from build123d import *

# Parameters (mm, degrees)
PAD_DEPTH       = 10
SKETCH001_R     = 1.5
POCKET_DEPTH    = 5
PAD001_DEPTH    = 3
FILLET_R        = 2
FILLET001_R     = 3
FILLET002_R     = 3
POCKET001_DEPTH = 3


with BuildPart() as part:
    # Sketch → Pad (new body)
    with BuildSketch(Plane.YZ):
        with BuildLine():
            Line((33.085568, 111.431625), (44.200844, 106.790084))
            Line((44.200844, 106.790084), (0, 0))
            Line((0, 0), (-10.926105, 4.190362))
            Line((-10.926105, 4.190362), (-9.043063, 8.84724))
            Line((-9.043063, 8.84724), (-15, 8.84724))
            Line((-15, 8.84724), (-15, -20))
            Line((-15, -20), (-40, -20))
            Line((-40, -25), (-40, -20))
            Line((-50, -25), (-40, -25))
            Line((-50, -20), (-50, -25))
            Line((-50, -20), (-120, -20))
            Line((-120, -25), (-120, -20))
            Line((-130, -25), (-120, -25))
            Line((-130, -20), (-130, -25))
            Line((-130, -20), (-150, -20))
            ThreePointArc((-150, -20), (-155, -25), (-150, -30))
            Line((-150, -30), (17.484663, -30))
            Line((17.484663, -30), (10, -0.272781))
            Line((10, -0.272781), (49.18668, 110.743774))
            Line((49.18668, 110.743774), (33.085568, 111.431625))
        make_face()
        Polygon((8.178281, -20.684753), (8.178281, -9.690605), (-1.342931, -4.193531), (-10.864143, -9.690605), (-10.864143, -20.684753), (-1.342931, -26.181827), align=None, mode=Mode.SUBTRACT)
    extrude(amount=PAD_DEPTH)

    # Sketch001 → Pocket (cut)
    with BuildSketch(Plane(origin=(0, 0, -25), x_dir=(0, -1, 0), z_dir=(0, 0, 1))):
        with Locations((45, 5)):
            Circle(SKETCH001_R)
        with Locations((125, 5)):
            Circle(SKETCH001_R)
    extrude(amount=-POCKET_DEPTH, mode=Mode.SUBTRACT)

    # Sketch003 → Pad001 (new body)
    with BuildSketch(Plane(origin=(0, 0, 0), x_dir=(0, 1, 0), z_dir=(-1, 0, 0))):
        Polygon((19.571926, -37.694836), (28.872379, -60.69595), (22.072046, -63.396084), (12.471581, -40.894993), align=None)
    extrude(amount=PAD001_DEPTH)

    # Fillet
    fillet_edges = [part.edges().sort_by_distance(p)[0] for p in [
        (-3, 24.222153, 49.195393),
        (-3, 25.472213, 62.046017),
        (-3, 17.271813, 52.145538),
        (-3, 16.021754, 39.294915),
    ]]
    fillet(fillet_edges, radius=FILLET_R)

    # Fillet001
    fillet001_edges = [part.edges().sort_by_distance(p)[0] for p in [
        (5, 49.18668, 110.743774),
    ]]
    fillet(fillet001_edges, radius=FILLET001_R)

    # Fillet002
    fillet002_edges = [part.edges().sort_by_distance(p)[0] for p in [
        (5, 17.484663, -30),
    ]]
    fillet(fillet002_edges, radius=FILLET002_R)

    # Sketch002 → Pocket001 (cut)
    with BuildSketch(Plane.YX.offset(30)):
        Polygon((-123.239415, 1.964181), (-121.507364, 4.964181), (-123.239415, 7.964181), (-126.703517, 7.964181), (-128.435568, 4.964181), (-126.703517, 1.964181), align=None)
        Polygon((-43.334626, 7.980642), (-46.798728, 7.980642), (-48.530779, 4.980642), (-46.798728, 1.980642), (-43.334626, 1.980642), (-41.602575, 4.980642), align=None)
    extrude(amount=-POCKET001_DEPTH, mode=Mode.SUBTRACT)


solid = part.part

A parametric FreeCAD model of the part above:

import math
import FreeCAD as App
import Part
import Sketcher

V = App.Vector
Q = App.Units.Quantity


def edges_at(feature, points):
    """Names of the edges that pass closest to the given points."""
    edges = feature.Shape.Edges
    near = lambda p: min(range(len(edges)), key=lambda i: edges[i].distToShape(Part.Vertex(*p))[0])
    return sorted({f"Edge{near(p) + 1}" for p in points})


def add_polygon(sketch, points):
    """Adds a closed chain of lines whose ends are joined by coincident constraints."""
    first, n = sketch.GeometryCount, len(points)
    for a, b in zip(points, points[1:] + points[:1]):
        sketch.addGeometry(Part.LineSegment(App.Vector(*a, 0), App.Vector(*b, 0)), False)
    for i in range(n):
        sketch.addConstraint(Sketcher.Constraint("Coincident", first + i, 2, first + (i + 1) % n, 1))

doc = App.newDocument("Part")
body = doc.addObject("PartDesign::Body", "Body")

# Sketch on YZ plane
sketch1 = doc.addObject("Sketcher::SketchObject", "Sketch")
body.addObject(sketch1)
sketch1.AttachmentSupport = (doc.YZ_Plane, [""])
sketch1.MapMode = "FlatFace"
sketch1.addGeometry(Part.LineSegment(V(33.085568, 111.431625, 0), V(44.200844, 106.790084, 0)), False)  # 0
sketch1.addGeometry(Part.LineSegment(V(44.200844, 106.790084, 0), V(0, 0, 0)), False)  # 1
sketch1.addGeometry(Part.LineSegment(V(0, 0, 0), V(-10.926105, 4.190362, 0)), False)  # 2
sketch1.addGeometry(Part.LineSegment(V(-10.926105, 4.190362, 0), V(-9.043063, 8.84724, 0)), False)  # 3
sketch1.addGeometry(Part.LineSegment(V(-9.043063, 8.84724, 0), V(-15, 8.84724, 0)), False)  # 4
sketch1.addGeometry(Part.LineSegment(V(-15, 8.84724, 0), V(-15, -20, 0)), False)  # 5
sketch1.addGeometry(Part.LineSegment(V(-15, -20, 0), V(-40, -20, 0)), False)  # 6
sketch1.addGeometry(Part.LineSegment(V(-40, -20, 0), V(-40, -25, 0)), False)  # 7
sketch1.addGeometry(Part.LineSegment(V(-40, -25, 0), V(-50, -25, 0)), False)  # 8
sketch1.addGeometry(Part.LineSegment(V(-50, -25, 0), V(-50, -20, 0)), False)  # 9
sketch1.addGeometry(Part.LineSegment(V(-50, -20, 0), V(-120, -20, 0)), False)  # 10
sketch1.addGeometry(Part.LineSegment(V(-120, -20, 0), V(-120, -25, 0)), False)  # 11
sketch1.addGeometry(Part.LineSegment(V(-120, -25, 0), V(-130, -25, 0)), False)  # 12
sketch1.addGeometry(Part.LineSegment(V(-130, -25, 0), V(-130, -20, 0)), False)  # 13
sketch1.addGeometry(Part.LineSegment(V(-130, -20, 0), V(-150, -20, 0)), False)  # 14
sketch1.addGeometry(Part.ArcOfCircle(Part.Circle(V(-150, -25, 0), V(0, 0, 1), 5), math.radians(90), math.radians(270)), False)  # 15
sketch1.addGeometry(Part.LineSegment(V(-150, -30, 0), V(17.484663, -30, 0)), False)  # 16
sketch1.addGeometry(Part.LineSegment(V(17.484663, -30, 0), V(10, -0.272781, 0)), False)  # 17
sketch1.addGeometry(Part.LineSegment(V(10, -0.272781, 0), V(49.18668, 110.743774, 0)), False)  # 18
sketch1.addGeometry(Part.LineSegment(V(49.18668, 110.743774, 0), V(33.085568, 111.431625, 0)), False)  # 19
add_polygon(sketch1, [(8.178281, -9.690605), (8.178281, -20.684753), (-1.342931, -26.181827), (-10.864143, -20.684753), (-10.864143, -9.690605), (-1.342931, -4.193531)])  # lines 20-25
sketch1.addConstraint(Sketcher.Constraint("Coincident", 0, 2, 1, 1))
sketch1.addConstraint(Sketcher.Constraint("Coincident", 1, 2, 2, 1))
sketch1.addConstraint(Sketcher.Constraint("Coincident", 2, 2, 3, 1))
sketch1.addConstraint(Sketcher.Constraint("Coincident", 3, 2, 4, 1))
sketch1.addConstraint(Sketcher.Constraint("Coincident", 4, 2, 5, 1))
sketch1.addConstraint(Sketcher.Constraint("Coincident", 5, 2, 6, 1))
sketch1.addConstraint(Sketcher.Constraint("Coincident", 6, 2, 7, 1))
sketch1.addConstraint(Sketcher.Constraint("Coincident", 7, 2, 8, 1))
sketch1.addConstraint(Sketcher.Constraint("Coincident", 8, 2, 9, 1))
sketch1.addConstraint(Sketcher.Constraint("Coincident", 9, 2, 10, 1))
sketch1.addConstraint(Sketcher.Constraint("Coincident", 10, 2, 11, 1))
sketch1.addConstraint(Sketcher.Constraint("Coincident", 11, 2, 12, 1))
sketch1.addConstraint(Sketcher.Constraint("Coincident", 12, 2, 13, 1))
sketch1.addConstraint(Sketcher.Constraint("Coincident", 13, 2, 14, 1))
sketch1.addConstraint(Sketcher.Constraint("Tangent", 14, 2, 15, 1))
sketch1.addConstraint(Sketcher.Constraint("Tangent", 15, 2, 16, 1))
sketch1.addConstraint(Sketcher.Constraint("Coincident", 16, 2, 17, 1))
sketch1.addConstraint(Sketcher.Constraint("Coincident", 17, 2, 18, 1))
sketch1.addConstraint(Sketcher.Constraint("Coincident", 18, 2, 19, 1))
sketch1.addConstraint(Sketcher.Constraint("Coincident", 19, 2, 0, 1))
sketch1.addConstraint(Sketcher.Constraint("Horizontal", 4))
sketch1.addConstraint(Sketcher.Constraint("Vertical", 5))
sketch1.addConstraint(Sketcher.Constraint("Horizontal", 6))
sketch1.addConstraint(Sketcher.Constraint("Vertical", 7))
sketch1.addConstraint(Sketcher.Constraint("Horizontal", 8))
sketch1.addConstraint(Sketcher.Constraint("Vertical", 9))
sketch1.addConstraint(Sketcher.Constraint("Horizontal", 10))
sketch1.addConstraint(Sketcher.Constraint("Vertical", 11))
sketch1.addConstraint(Sketcher.Constraint("Horizontal", 12))
sketch1.addConstraint(Sketcher.Constraint("Vertical", 13))
sketch1.addConstraint(Sketcher.Constraint("Horizontal", 14))
sketch1.addConstraint(Sketcher.Constraint("Horizontal", 16))
sketch1.addConstraint(Sketcher.Constraint("Vertical", 20))
sketch1.addConstraint(Sketcher.Constraint("Vertical", 23))
sketch1.addConstraint(Sketcher.Constraint("Coincident", 1, 2, -1, 1))
sketch1.addConstraint(Sketcher.Constraint("Parallel", 21, 24))
sketch1.addConstraint(Sketcher.Constraint("Parallel", 22, 25))
sketch1.addConstraint(Sketcher.Constraint("Horizontal", 15, 3, 7, 2))
sketch1.addConstraint(Sketcher.Constraint("Horizontal", 6, 2, 9, 2))
sketch1.addConstraint(Sketcher.Constraint("Horizontal", 8, 2, 11, 2))
sketch1.addConstraint(Sketcher.Constraint("Horizontal", 10, 2, 13, 2))
sketch1.addConstraint(Sketcher.Constraint("Horizontal", 20, 2, 22, 2))
sketch1.addConstraint(Sketcher.Constraint("Horizontal", 23, 2, 25, 2))
sketch1.addConstraint(Sketcher.Constraint("Vertical", 21, 2, 24, 2))
sketch1.addConstraint(Sketcher.Constraint("Equal", 8, 12))
sketch1.addConstraint(Sketcher.Constraint("Radius", 15, Q("5 mm")))
sketch1.addConstraint(Sketcher.Constraint("DistanceX", 6, 2, 6, 1, Q("25 mm")))
sketch1.addConstraint(Sketcher.Constraint("DistanceX", 8, 2, 8, 1, Q("10 mm")))
sketch1.addConstraint(Sketcher.Constraint("DistanceX", 10, 2, 10, 1, Q("70 mm")))
sketch1.addConstraint(Sketcher.Constraint("DistanceX", 14, 2, 14, 1, Q("20 mm")))
sketch1.addConstraint(Sketcher.Constraint("Angle", 21, Q("-150.000001 deg")))
sketch1.addConstraint(Sketcher.Constraint("DistanceX", 15, 3, -1, 1, Q("150 mm")))
sketch1.addConstraint(Sketcher.Constraint("DistanceY", 15, 3, -1, 1, Q("25 mm")))
sketch1.addConstraint(Sketcher.Constraint("DistanceX", -1, 1, 17, 2, Q("10 mm")))
sketch1.addConstraint(Sketcher.Constraint("Distance", 19, Q("16.115798 mm")))
sketch1.addConstraint(Sketcher.Constraint("DistanceY", 5, 2, 5, 1, Q("28.84724 mm")))
sketch1.addConstraint(Sketcher.Constraint("DistanceY", 20, 2, 20, 1, Q("10.994148 mm")))
sketch1.addConstraint(Sketcher.Constraint("Distance", 2, Q("11.70209 mm")))
sketch1.addConstraint(Sketcher.Constraint("Distance", 17, Q("30.654979 mm")))
sketch1.addConstraint(Sketcher.Constraint("Distance", 21, Q("10.994148 mm")))
sketch1.addConstraint(Sketcher.Constraint("DistanceX", 4, 2, 4, 1, Q("5.956937 mm")))
sketch1.addConstraint(Sketcher.Constraint("DistanceX", 16, 1, 16, 2, Q("167.484663 mm")))
sketch1.addConstraint(Sketcher.Constraint("DistanceX", -1, 1, 18, 2, Q("49.18668 mm")))
sketch1.addConstraint(Sketcher.Constraint("DistanceX", -1, 1, 19, 2, Q("33.085568 mm")))
sketch1.addConstraint(Sketcher.Constraint("DistanceX", -1, 1, 20, 2, Q("8.178281 mm")))
sketch1.addConstraint(Sketcher.Constraint("DistanceY", 24, 2, -1, 1, Q("4.193531 mm")))
sketch1.addConstraint(Sketcher.Constraint("DistanceX", 2, 2, 0, 2, Q("55.126949 mm")))
sketch1.addConstraint(Sketcher.Constraint("DistanceY", 2, 2, 0, 2, Q("102.599722 mm")))
sketch1.addConstraint(Sketcher.Constraint("DistanceX", 2, 2, 3, 2, Q("1.883042 mm")))
sketch1.addConstraint(Sketcher.Constraint("DistanceY", 0, 2, 18, 2, Q("3.95369 mm")))
pad1 = doc.addObject("PartDesign::Pad", "Pad")
body.addObject(pad1)
pad1.Profile = sketch1
pad1.Length = 10

# Sketch on XY plane
sketch2 = doc.addObject("Sketcher::SketchObject", "Sketch001")
body.addObject(sketch2)
sketch2.AttachmentSupport = (doc.XY_Plane, [""])
sketch2.MapMode = "FlatFace"
sketch2.AttachmentOffset = App.Placement(V(0, 0, -25), App.Rotation())
sketch2.addGeometry(Part.Circle(V(5, -45, 0), V(0, 0, 1), 1.5), False)
sketch2.addGeometry(Part.Circle(V(5, -125, 0), V(0, 0, 1), 1.5), False)
sketch2.addConstraint(Sketcher.Constraint("Equal", 0, 1))
sketch2.addConstraint(Sketcher.Constraint("Vertical", 0, 3, 1, 3))
sketch2.addConstraint(Sketcher.Constraint("Diameter", 0, Q("3 mm")))
sketch2.addConstraint(Sketcher.Constraint("DistanceX", -1, 1, 0, 3, Q("5 mm")))
sketch2.addConstraint(Sketcher.Constraint("DistanceY", 0, 3, -1, 1, Q("45 mm")))
sketch2.addConstraint(Sketcher.Constraint("DistanceY", 1, 3, -1, 1, Q("125 mm")))
pocket1 = doc.addObject("PartDesign::Pocket", "Pocket")
body.addObject(pocket1)
pocket1.Profile = sketch2
pocket1.Length = 5

# Sketch on YZ plane
sketch3 = doc.addObject("Sketcher::SketchObject", "Sketch002")
body.addObject(sketch3)
sketch3.AttachmentSupport = (doc.YZ_Plane, [""])
sketch3.MapMode = "FlatFace"
add_polygon(sketch3, [(29, 61), (20, 38), (12, 41), (22, 63)])  # lines 0-3
sketch3.addConstraint(Sketcher.Constraint("Distance", 1, Q("7.78819 mm")))
sketch3.addConstraint(Sketcher.Constraint("Distance", 3, Q("7.316779 mm")))
sketch3.addConstraint(Sketcher.Constraint("DistanceX", -1, 1, 1, 2, Q("12.471581 mm")))
sketch3.addConstraint(Sketcher.Constraint("DistanceX", -1, 1, 3, 2, Q("28.872379 mm")))
sketch3.addConstraint(Sketcher.Constraint("DistanceY", -1, 1, 3, 2, Q("60.69595 mm")))
sketch3.addConstraint(Sketcher.Constraint("DistanceY", 1, 2, 2, 2, Q("22.501091 mm")))
sketch3.addConstraint(Sketcher.Constraint("DistanceX", 0, 2, 2, 2, Q("2.50012 mm")))
sketch3.addConstraint(Sketcher.Constraint("Distance", 0, Q("24.810274 mm")))
pad2 = doc.addObject("PartDesign::Pad", "Pad001")
body.addObject(pad2)
pad2.Profile = sketch3
pad2.Length = 3
pad2.Reversed = True
doc.recompute()

fillet = doc.addObject("PartDesign::Fillet", "Fillet")
body.addObject(fillet)
fillet.Base = (pad2, edges_at(pad2, [
    (-3, 24.222, 49.195),
    (-3, 25.472, 62.046),
    (-3, 17.272, 52.146),
    (-3, 16.022, 39.295),
]))
fillet.Radius = 2
doc.recompute()

fillet2 = doc.addObject("PartDesign::Fillet", "Fillet001")
body.addObject(fillet2)
fillet2.Base = (fillet, edges_at(fillet, [(5, 49.187, 110.744)]))
fillet2.Radius = 3
doc.recompute()

fillet3 = doc.addObject("PartDesign::Fillet", "Fillet002")
body.addObject(fillet3)
fillet3.Base = (fillet2, edges_at(fillet2, [(5, 17.485, -30)]))
fillet3.Radius = 3

# Sketch on XY plane
sketch4 = doc.addObject("Sketcher::SketchObject", "Sketch003")
body.addObject(sketch4)
sketch4.AttachmentSupport = (doc.XY_Plane, [""])
sketch4.MapMode = "FlatFace"
sketch4.AttachmentOffset = App.Placement(V(0, 0, -30), App.Rotation())
add_polygon(sketch4, [(2, -123.2), (5, -121.5), (8, -123.2), (8, -126.7), (5, -128.4), (2, -126.7)])  # lines 0-5
add_polygon(sketch4, [(8, -43.3), (8, -46.8), (5, -48.5), (2, -46.8), (2, -43.3), (5, -41.6)])  # lines 6-11
sketch4.addConstraint(Sketcher.Constraint("Vertical", 2))
sketch4.addConstraint(Sketcher.Constraint("Vertical", 5))
sketch4.addConstraint(Sketcher.Constraint("Vertical", 6))
sketch4.addConstraint(Sketcher.Constraint("Vertical", 9))
sketch4.addConstraint(Sketcher.Constraint("Parallel", 0, 3))
sketch4.addConstraint(Sketcher.Constraint("Parallel", 1, 4))
sketch4.addConstraint(Sketcher.Constraint("Parallel", 3, 7))
sketch4.addConstraint(Sketcher.Constraint("Parallel", 4, 8))
sketch4.addConstraint(Sketcher.Constraint("Parallel", 7, 10))
sketch4.addConstraint(Sketcher.Constraint("Parallel", 8, 11))
sketch4.addConstraint(Sketcher.Constraint("Horizontal", 2, 2, 4, 2))
sketch4.addConstraint(Sketcher.Constraint("Horizontal", 1, 2, 5, 2))
sketch4.addConstraint(Sketcher.Constraint("Horizontal", 6, 2, 8, 2))
sketch4.addConstraint(Sketcher.Constraint("Horizontal", 9, 2, 11, 2))
sketch4.addConstraint(Sketcher.Constraint("Vertical", 0, 2, 3, 2))
sketch4.addConstraint(Sketcher.Constraint("Equal", 5, 6))
sketch4.addConstraint(Sketcher.Constraint("Equal", 4, 7))
sketch4.addConstraint(Sketcher.Constraint("Angle", 0, Q("30.000003 deg")))
sketch4.addConstraint(Sketcher.Constraint("DistanceX", 0, 2, 1, 2, Q("3 mm")))
sketch4.addConstraint(Sketcher.Constraint("DistanceY", 6, 2, 6, 1, Q("3.464102 mm")))
sketch4.addConstraint(Sketcher.Constraint("DistanceX", -1, 1, 0, 2, Q("4.964181 mm")))
sketch4.addConstraint(Sketcher.Constraint("DistanceX", -1, 1, 6, 2, Q("7.980642 mm")))
sketch4.addConstraint(Sketcher.Constraint("DistanceY", 7, 2, -1, 1, Q("48.530779 mm")))
sketch4.addConstraint(Sketcher.Constraint("DistanceY", 2, 2, 6, 2, Q("79.904789 mm")))
pocket2 = doc.addObject("PartDesign::Pocket", "Pocket001")
body.addObject(pocket2)
pocket2.Profile = sketch4
pocket2.Length = 3
pocket2.Reversed = True

doc.recompute()
